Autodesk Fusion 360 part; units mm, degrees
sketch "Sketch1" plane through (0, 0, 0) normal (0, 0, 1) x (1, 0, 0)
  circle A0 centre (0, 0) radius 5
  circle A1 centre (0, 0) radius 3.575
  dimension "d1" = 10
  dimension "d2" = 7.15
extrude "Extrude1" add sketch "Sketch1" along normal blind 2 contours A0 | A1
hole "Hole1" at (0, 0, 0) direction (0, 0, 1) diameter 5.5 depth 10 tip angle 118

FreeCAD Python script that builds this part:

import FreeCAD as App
import Part
import Sketcher

V = App.Vector
Q = App.Units.Quantity

doc = App.newDocument("Part")
body = doc.addObject("PartDesign::Body", "Body")

# Sketch on XY plane
sketch1 = doc.addObject("Sketcher::SketchObject", "Sketch")
body.addObject(sketch1)
sketch1.AttachmentSupport = (doc.XY_Plane, [""])
sketch1.MapMode = "FlatFace"
sketch1.addGeometry(Part.Circle(V(0, 0, 0), V(0, 0, 1), 5), False)
sketch1.addConstraint([
    Sketcher.Constraint("Coincident", 0, 3, -1, 1),
    Sketcher.Constraint("Diameter", 0, Q("10 mm")),
])
pad1 = doc.addObject("PartDesign::Pad", "Pad")
body.addObject(pad1)
pad1.Profile = sketch1
pad1.Length = 2

# Sketch on XY plane
sketch2 = doc.addObject("Sketcher::SketchObject", "Sketch001")
body.addObject(sketch2)
sketch2.AttachmentSupport = (doc.XY_Plane, [""])
sketch2.MapMode = "FlatFace"
sketch2.addGeometry(Part.Circle(V(0, 0, 0), V(0, 0, 1), 2.8), False)
sketch2.addConstraint([
    Sketcher.Constraint("Coincident", 0, 3, -1, 1),
    Sketcher.Constraint("Diameter", 0, Q("5.5 mm")),
])
doc.recompute()
hole = doc.addObject("PartDesign::Hole", "Hole")
body.addObject(hole)
hole.Profile = sketch2
hole.ThreadType = "None"
hole.Diameter = 5.5
hole.DepthType = "Dimension"
hole.Depth = 10
hole.DrillPoint = "Angled"
hole.DrillPointAngle = 118
hole.Reversed = True

doc.recompute()
